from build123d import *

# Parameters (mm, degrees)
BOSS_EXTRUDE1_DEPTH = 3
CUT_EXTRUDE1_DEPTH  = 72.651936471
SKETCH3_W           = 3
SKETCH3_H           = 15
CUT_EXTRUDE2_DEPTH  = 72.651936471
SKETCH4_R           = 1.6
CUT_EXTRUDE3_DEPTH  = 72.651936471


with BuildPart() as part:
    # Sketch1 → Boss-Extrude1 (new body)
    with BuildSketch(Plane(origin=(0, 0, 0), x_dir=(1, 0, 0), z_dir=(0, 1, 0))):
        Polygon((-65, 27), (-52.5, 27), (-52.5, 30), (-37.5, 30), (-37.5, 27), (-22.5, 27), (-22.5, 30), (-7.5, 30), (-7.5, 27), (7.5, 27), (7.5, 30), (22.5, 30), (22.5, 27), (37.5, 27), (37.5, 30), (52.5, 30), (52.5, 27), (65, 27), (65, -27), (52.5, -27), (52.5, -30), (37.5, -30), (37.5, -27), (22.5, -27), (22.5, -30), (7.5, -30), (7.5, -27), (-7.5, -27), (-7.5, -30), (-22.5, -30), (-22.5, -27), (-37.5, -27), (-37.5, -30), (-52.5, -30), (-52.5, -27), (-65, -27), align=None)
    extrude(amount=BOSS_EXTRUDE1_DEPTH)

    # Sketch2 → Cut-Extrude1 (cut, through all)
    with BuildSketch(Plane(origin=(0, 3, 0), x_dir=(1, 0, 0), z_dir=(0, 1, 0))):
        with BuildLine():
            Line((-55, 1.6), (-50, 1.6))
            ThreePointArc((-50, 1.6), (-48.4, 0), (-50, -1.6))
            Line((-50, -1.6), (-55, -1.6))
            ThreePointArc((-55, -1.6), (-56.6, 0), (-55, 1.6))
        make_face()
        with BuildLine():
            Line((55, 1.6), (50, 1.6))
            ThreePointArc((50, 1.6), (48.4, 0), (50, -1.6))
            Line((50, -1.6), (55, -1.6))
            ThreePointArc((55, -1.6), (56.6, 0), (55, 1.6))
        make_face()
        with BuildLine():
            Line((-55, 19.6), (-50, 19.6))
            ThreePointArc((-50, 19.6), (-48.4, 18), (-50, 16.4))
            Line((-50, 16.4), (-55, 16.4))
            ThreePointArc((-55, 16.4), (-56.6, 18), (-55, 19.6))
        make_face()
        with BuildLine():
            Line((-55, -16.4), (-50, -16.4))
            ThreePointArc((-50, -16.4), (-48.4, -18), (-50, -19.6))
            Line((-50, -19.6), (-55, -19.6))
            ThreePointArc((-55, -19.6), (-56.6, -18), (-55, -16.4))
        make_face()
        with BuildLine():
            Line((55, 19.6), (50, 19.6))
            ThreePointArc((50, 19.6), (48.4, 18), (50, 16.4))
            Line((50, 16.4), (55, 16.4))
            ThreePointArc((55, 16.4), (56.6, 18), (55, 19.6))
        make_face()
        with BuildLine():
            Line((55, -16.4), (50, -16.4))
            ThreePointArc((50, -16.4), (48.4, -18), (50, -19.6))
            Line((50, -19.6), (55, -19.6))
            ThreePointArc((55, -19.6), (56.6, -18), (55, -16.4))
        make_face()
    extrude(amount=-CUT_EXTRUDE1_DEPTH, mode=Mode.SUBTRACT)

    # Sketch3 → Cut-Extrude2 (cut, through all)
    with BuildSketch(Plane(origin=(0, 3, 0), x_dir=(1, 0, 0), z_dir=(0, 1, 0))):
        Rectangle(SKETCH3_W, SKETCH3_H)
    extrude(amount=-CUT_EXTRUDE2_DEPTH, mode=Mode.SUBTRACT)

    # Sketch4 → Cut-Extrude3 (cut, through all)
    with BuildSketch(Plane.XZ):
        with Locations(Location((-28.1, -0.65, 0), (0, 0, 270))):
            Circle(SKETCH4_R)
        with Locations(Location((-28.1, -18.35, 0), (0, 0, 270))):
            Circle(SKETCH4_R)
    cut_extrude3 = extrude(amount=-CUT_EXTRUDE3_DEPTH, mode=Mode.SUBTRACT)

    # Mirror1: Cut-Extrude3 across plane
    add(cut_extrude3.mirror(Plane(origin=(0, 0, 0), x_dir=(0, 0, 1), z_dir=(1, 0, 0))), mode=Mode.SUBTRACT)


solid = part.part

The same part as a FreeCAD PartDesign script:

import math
import FreeCAD as App
import Part
import Sketcher
from FreeCAD import Vector

doc = App.newDocument("Part")
body = doc.addObject("PartDesign::Body", "Body")

# Sketch on XZ plane
sketch1 = body.newObject("Sketcher::SketchObject", "Sketch")
sketch1.AttachmentSupport = (doc.getObject("XZ_Plane"), [""])
sketch1.MapMode = "FlatFace"
sketch1.addGeometry(Part.LineSegment(Vector(-52.5, -27, 0), Vector(-65, -27, 0)), False)
sketch1.addGeometry(Part.LineSegment(Vector(-65, -27, 0), Vector(-65, 27, 0)), False)
sketch1.addGeometry(Part.LineSegment(Vector(-65, 27, 0), Vector(-52.5, 27, 0)), False)
sketch1.addGeometry(Part.LineSegment(Vector(-52.5, 27, 0), Vector(-52.5, 30, 0)), False)
sketch1.addGeometry(Part.LineSegment(Vector(-52.5, 30, 0), Vector(-37.5, 30, 0)), False)
sketch1.addGeometry(Part.LineSegment(Vector(-37.5, 30, 0), Vector(-37.5, 27, 0)), False)
sketch1.addGeometry(Part.LineSegment(Vector(-37.5, 27, 0), Vector(-22.5, 27, 0)), False)
sketch1.addGeometry(Part.LineSegment(Vector(-22.5, 27, 0), Vector(-22.5, 30, 0)), False)
sketch1.addGeometry(Part.LineSegment(Vector(-22.5, 30, 0), Vector(-7.5, 30, 0)), False)
sketch1.addGeometry(Part.LineSegment(Vector(-7.5, 30, 0), Vector(-7.5, 27, 0)), False)
sketch1.addGeometry(Part.LineSegment(Vector(-7.5, 27, 0), Vector(7.5, 27, 0)), False)
sketch1.addGeometry(Part.LineSegment(Vector(7.5, 27, 0), Vector(7.5, 30, 0)), False)
sketch1.addGeometry(Part.LineSegment(Vector(7.5, 30, 0), Vector(22.5, 30, 0)), False)
sketch1.addGeometry(Part.LineSegment(Vector(22.5, 30, 0), Vector(22.5, 27, 0)), False)
sketch1.addGeometry(Part.LineSegment(Vector(22.5, 27, 0), Vector(37.5, 27, 0)), False)
sketch1.addGeometry(Part.LineSegment(Vector(37.5, 27, 0), Vector(37.5, 30, 0)), False)
sketch1.addGeometry(Part.LineSegment(Vector(37.5, 30, 0), Vector(52.5, 30, 0)), False)
sketch1.addGeometry(Part.LineSegment(Vector(52.5, 30, 0), Vector(52.5, 27, 0)), False)
sketch1.addGeometry(Part.LineSegment(Vector(52.5, 27, 0), Vector(65, 27, 0)), False)
sketch1.addGeometry(Part.LineSegment(Vector(65, 27, 0), Vector(65, -27, 0)), False)
sketch1.addGeometry(Part.LineSegment(Vector(65, -27, 0), Vector(52.5, -27, 0)), False)
sketch1.addGeometry(Part.LineSegment(Vector(52.5, -27, 0), Vector(52.5, -30, 0)), False)
sketch1.addGeometry(Part.LineSegment(Vector(52.5, -30, 0), Vector(37.5, -30, 0)), False)
sketch1.addGeometry(Part.LineSegment(Vector(37.5, -30, 0), Vector(37.5, -27, 0)), False)
sketch1.addGeometry(Part.LineSegment(Vector(37.5, -27, 0), Vector(22.5, -27, 0)), False)
sketch1.addGeometry(Part.LineSegment(Vector(22.5, -27, 0), Vector(22.5, -30, 0)), False)
sketch1.addGeometry(Part.LineSegment(Vector(22.5, -30, 0), Vector(7.5, -30, 0)), False)
sketch1.addGeometry(Part.LineSegment(Vector(7.5, -30, 0), Vector(7.5, -27, 0)), False)
sketch1.addGeometry(Part.LineSegment(Vector(7.5, -27, 0), Vector(-7.5, -27, 0)), False)
sketch1.addGeometry(Part.LineSegment(Vector(-7.5, -27, 0), Vector(-7.5, -30, 0)), False)
sketch1.addGeometry(Part.LineSegment(Vector(-7.5, -30, 0), Vector(-22.5, -30, 0)), False)
sketch1.addGeometry(Part.LineSegment(Vector(-22.5, -30, 0), Vector(-22.5, -27, 0)), False)
sketch1.addGeometry(Part.LineSegment(Vector(-22.5, -27, 0), Vector(-37.5, -27, 0)), False)
sketch1.addGeometry(Part.LineSegment(Vector(-37.5, -27, 0), Vector(-37.5, -30, 0)), False)
sketch1.addGeometry(Part.LineSegment(Vector(-37.5, -30, 0), Vector(-52.5, -30, 0)), False)
sketch1.addGeometry(Part.LineSegment(Vector(-52.5, -30, 0), Vector(-52.5, -27, 0)), False)
sketch1.addConstraint(Sketcher.Constraint("Coincident", 0, 2, 1, 1))
sketch1.addConstraint(Sketcher.Constraint("Coincident", 1, 2, 2, 1))
sketch1.addConstraint(Sketcher.Constraint("Coincident", 2, 2, 3, 1))
sketch1.addConstraint(Sketcher.Constraint("Coincident", 3, 2, 4, 1))
sketch1.addConstraint(Sketcher.Constraint("Coincident", 4, 2, 5, 1))
sketch1.addConstraint(Sketcher.Constraint("Coincident", 5, 2, 6, 1))
sketch1.addConstraint(Sketcher.Constraint("Coincident", 6, 2, 7, 1))
sketch1.addConstraint(Sketcher.Constraint("Coincident", 7, 2, 8, 1))
sketch1.addConstraint(Sketcher.Constraint("Coincident", 8, 2, 9, 1))
sketch1.addConstraint(Sketcher.Constraint("Coincident", 9, 2, 10, 1))
sketch1.addConstraint(Sketcher.Constraint("Coincident", 10, 2, 11, 1))
sketch1.addConstraint(Sketcher.Constraint("Coincident", 11, 2, 12, 1))
sketch1.addConstraint(Sketcher.Constraint("Coincident", 12, 2, 13, 1))
sketch1.addConstraint(Sketcher.Constraint("Coincident", 13, 2, 14, 1))
sketch1.addConstraint(Sketcher.Constraint("Coincident", 14, 2, 15, 1))
sketch1.addConstraint(Sketcher.Constraint("Coincident", 15, 2, 16, 1))
sketch1.addConstraint(Sketcher.Constraint("Coincident", 16, 2, 17, 1))
sketch1.addConstraint(Sketcher.Constraint("Coincident", 17, 2, 18, 1))
sketch1.addConstraint(Sketcher.Constraint("Coincident", 18, 2, 19, 1))
sketch1.addConstraint(Sketcher.Constraint("Coincident", 19, 2, 20, 1))
sketch1.addConstraint(Sketcher.Constraint("Coincident", 20, 2, 21, 1))
sketch1.addConstraint(Sketcher.Constraint("Coincident", 21, 2, 22, 1))
sketch1.addConstraint(Sketcher.Constraint("Coincident", 22, 2, 23, 1))
sketch1.addConstraint(Sketcher.Constraint("Coincident", 23, 2, 24, 1))
sketch1.addConstraint(Sketcher.Constraint("Coincident", 24, 2, 25, 1))
sketch1.addConstraint(Sketcher.Constraint("Coincident", 25, 2, 26, 1))
sketch1.addConstraint(Sketcher.Constraint("Coincident", 26, 2, 27, 1))
sketch1.addConstraint(Sketcher.Constraint("Coincident", 27, 2, 28, 1))
sketch1.addConstraint(Sketcher.Constraint("Coincident", 28, 2, 29, 1))
sketch1.addConstraint(Sketcher.Constraint("Coincident", 29, 2, 30, 1))
sketch1.addConstraint(Sketcher.Constraint("Coincident", 30, 2, 31, 1))
sketch1.addConstraint(Sketcher.Constraint("Coincident", 31, 2, 32, 1))
sketch1.addConstraint(Sketcher.Constraint("Coincident", 32, 2, 33, 1))
sketch1.addConstraint(Sketcher.Constraint("Coincident", 33, 2, 34, 1))
sketch1.addConstraint(Sketcher.Constraint("Coincident", 34, 2, 35, 1))
sketch1.addConstraint(Sketcher.Constraint("Coincident", 35, 2, 0, 1))
sketch1.addConstraint(Sketcher.Constraint("Horizontal", 0))
sketch1.addConstraint(Sketcher.Constraint("Vertical", 1))
sketch1.addConstraint(Sketcher.Constraint("Horizontal", 2))
sketch1.addConstraint(Sketcher.Constraint("Vertical", 3))
sketch1.addConstraint(Sketcher.Constraint("Horizontal", 4))
sketch1.addConstraint(Sketcher.Constraint("Vertical", 5))
sketch1.addConstraint(Sketcher.Constraint("Horizontal", 6))
sketch1.addConstraint(Sketcher.Constraint("Vertical", 7))
sketch1.addConstraint(Sketcher.Constraint("Horizontal", 8))
sketch1.addConstraint(Sketcher.Constraint("Vertical", 9))
sketch1.addConstraint(Sketcher.Constraint("Horizontal", 10))
sketch1.addConstraint(Sketcher.Constraint("Vertical", 11))
sketch1.addConstraint(Sketcher.Constraint("Horizontal", 12))
sketch1.addConstraint(Sketcher.Constraint("Vertical", 13))
sketch1.addConstraint(Sketcher.Constraint("Horizontal", 14))
sketch1.addConstraint(Sketcher.Constraint("Vertical", 15))
sketch1.addConstraint(Sketcher.Constraint("Horizontal", 16))
sketch1.addConstraint(Sketcher.Constraint("Vertical", 17))
sketch1.addConstraint(Sketcher.Constraint("Horizontal", 18))
sketch1.addConstraint(Sketcher.Constraint("Vertical", 19))
sketch1.addConstraint(Sketcher.Constraint("Horizontal", 20))
sketch1.addConstraint(Sketcher.Constraint("Vertical", 21))
sketch1.addConstraint(Sketcher.Constraint("Horizontal", 22))
sketch1.addConstraint(Sketcher.Constraint("Vertical", 23))
sketch1.addConstraint(Sketcher.Constraint("Horizontal", 24))
sketch1.addConstraint(Sketcher.Constraint("Vertical", 25))
sketch1.addConstraint(Sketcher.Constraint("Horizontal", 26))
sketch1.addConstraint(Sketcher.Constraint("Vertical", 27))
sketch1.addConstraint(Sketcher.Constraint("Horizontal", 28))
sketch1.addConstraint(Sketcher.Constraint("Vertical", 29))
sketch1.addConstraint(Sketcher.Constraint("Horizontal", 30))
sketch1.addConstraint(Sketcher.Constraint("Vertical", 31))
sketch1.addConstraint(Sketcher.Constraint("Horizontal", 32))
sketch1.addConstraint(Sketcher.Constraint("Vertical", 33))
sketch1.addConstraint(Sketcher.Constraint("Horizontal", 34))
sketch1.addConstraint(Sketcher.Constraint("Vertical", 35))
sketch1.addConstraint(Sketcher.Constraint("Symmetric", 0, 2, 18, 2, -1, 1))
sketch1.addConstraint(Sketcher.Constraint("Symmetric", 2, 2, 20, 2, -1, 1))
sketch1.addConstraint(Sketcher.Constraint("Symmetric", 4, 2, 22, 2, -1, 1))
sketch1.addConstraint(Sketcher.Constraint("Symmetric", 6, 2, 24, 2, -1, 1))
sketch1.addConstraint(Sketcher.Constraint("Symmetric", 8, 2, 26, 2, -1, 1))
sketch1.addConstraint(Sketcher.Constraint("Symmetric", 10, 2, 28, 2, -1, 1))
sketch1.addConstraint(Sketcher.Constraint("Symmetric", 12, 2, 30, 2, -1, 1))
sketch1.addConstraint(Sketcher.Constraint("Symmetric", 14, 2, 32, 2, -1, 1))
sketch1.addConstraint(Sketcher.Constraint("Symmetric", 16, 2, 34, 2, -1, 1))
sketch1.addConstraint(Sketcher.Constraint("Symmetric", 8, 2, 11, 2, -2))
sketch1.addConstraint(Sketcher.Constraint("Symmetric", 6, 2, 13, 2, -2))
sketch1.addConstraint(Sketcher.Constraint("Symmetric", 4, 2, 15, 2, -2))
sketch1.addConstraint(Sketcher.Constraint("Symmetric", 2, 2, 17, 2, -2))
sketch1.addConstraint(Sketcher.Constraint("Horizontal", 2, 2, 5, 2))
sketch1.addConstraint(Sketcher.Constraint("Horizontal", 4, 2, 7, 2))
sketch1.addConstraint(Sketcher.Constraint("Horizontal", 6, 2, 9, 2))
sketch1.addConstraint(Sketcher.Constraint("Equal", 4, 6))
sketch1.addConstraint(Sketcher.Constraint("Equal", 6, 8))
sketch1.addConstraint(Sketcher.Constraint("Equal", 8, 10))
sketch1.addConstraint(Sketcher.Constraint("DistanceX", 4, 1, 4, 2, 15.0))
sketch1.addConstraint(Sketcher.Constraint("DistanceY", 1, 1, 1, 2, 54.0))
sketch1.addConstraint(Sketcher.Constraint("DistanceY", 3, 1, 3, 2, 3.0))
sketch1.addConstraint(Sketcher.Constraint("DistanceX", 0, 2, 0, 1, 12.5))
pad1 = body.newObject("PartDesign::Pad", "Pad")
pad1.Profile = sketch1
pad1.Length = 3
pad1.Reversed = True

# Sketch on XZ plane
sketch2 = body.newObject("Sketcher::SketchObject", "Sketch001")
sketch2.AttachmentSupport = (doc.getObject("XZ_Plane"), [""])
sketch2.MapMode = "FlatFace"
sketch2.AttachmentOffset = App.Placement(Vector(0, 0, -3), App.Rotation())
sketch2.addGeometry(Part.LineSegment(Vector(-50, -1.6, 0), Vector(-55, -1.6, 0)), False)
sketch2.addGeometry(Part.ArcOfCircle(Part.Circle(Vector(-55, 0, 0), Vector(0, 0, 1), 1.6), math.radians(90), math.radians(270)), False)
sketch2.addGeometry(Part.LineSegment(Vector(-55, 1.6, 0), Vector(-50, 1.6, 0)), False)
sketch2.addGeometry(Part.ArcOfCircle(Part.Circle(Vector(-50, 0, 0), Vector(0, 0, 1), 1.6), math.radians(-90), math.radians(90)), False)
sketch2.addGeometry(Part.LineSegment(Vector(55, -1.6, 0), Vector(50, -1.6, 0)), False)
sketch2.addGeometry(Part.ArcOfCircle(Part.Circle(Vector(50, 0, 0), Vector(0, 0, 1), 1.6), math.radians(90), math.radians(270)), False)
sketch2.addGeometry(Part.LineSegment(Vector(50, 1.6, 0), Vector(55, 1.6, 0)), False)
sketch2.addGeometry(Part.ArcOfCircle(Part.Circle(Vector(55, 0, 0), Vector(0, 0, 1), 1.6), math.radians(-90), math.radians(90)), False)
sketch2.addGeometry(Part.LineSegment(Vector(-50, -19.6, 0), Vector(-55, -19.6, 0)), False)
sketch2.addGeometry(Part.ArcOfCircle(Part.Circle(Vector(-55, -18, 0), Vector(0, 0, 1), 1.6), math.radians(90), math.radians(270)), False)
sketch2.addGeometry(Part.LineSegment(Vector(-55, -16.4, 0), Vector(-50, -16.4, 0)), False)
sketch2.addGeometry(Part.ArcOfCircle(Part.Circle(Vector(-50, -18, 0), Vector(0, 0, 1), 1.6), math.radians(-90), math.radians(90)), False)
sketch2.addGeometry(Part.LineSegment(Vector(-50, 16.4, 0), Vector(-55, 16.4, 0)), False)
sketch2.addGeometry(Part.ArcOfCircle(Part.Circle(Vector(-55, 18, 0), Vector(0, 0, 1), 1.6), math.radians(90), math.radians(270)), False)
sketch2.addGeometry(Part.LineSegment(Vector(-55, 19.6, 0), Vector(-50, 19.6, 0)), False)
sketch2.addGeometry(Part.ArcOfCircle(Part.Circle(Vector(-50, 18, 0), Vector(0, 0, 1), 1.6), math.radians(-90), math.radians(90)), False)
sketch2.addGeometry(Part.LineSegment(Vector(55, -19.6, 0), Vector(50, -19.6, 0)), False)
sketch2.addGeometry(Part.ArcOfCircle(Part.Circle(Vector(50, -18, 0), Vector(0, 0, 1), 1.6), math.radians(90), math.radians(270)), False)
sketch2.addGeometry(Part.LineSegment(Vector(50, -16.4, 0), Vector(55, -16.4, 0)), False)
sketch2.addGeometry(Part.ArcOfCircle(Part.Circle(Vector(55, -18, 0), Vector(0, 0, 1), 1.6), math.radians(-90), math.radians(90)), False)
sketch2.addGeometry(Part.LineSegment(Vector(55, 16.4, 0), Vector(50, 16.4, 0)), False)
sketch2.addGeometry(Part.ArcOfCircle(Part.Circle(Vector(50, 18, 0), Vector(0, 0, 1), 1.6), math.radians(90), math.radians(270)), False)
sketch2.addGeometry(Part.LineSegment(Vector(50, 19.6, 0), Vector(55, 19.6, 0)), False)
sketch2.addGeometry(Part.ArcOfCircle(Part.Circle(Vector(55, 18, 0), Vector(0, 0, 1), 1.6), math.radians(-90), math.radians(90)), False)
sketch2.addConstraint(Sketcher.Constraint("Tangent", 0, 2, 1, 2))
sketch2.addConstraint(Sketcher.Constraint("Tangent", 1, 1, 2, 1))
sketch2.addConstraint(Sketcher.Constraint("Tangent", 2, 2, 3, 2))
sketch2.addConstraint(Sketcher.Constraint("Tangent", 3, 1, 0, 1))
sketch2.addConstraint(Sketcher.Constraint("Tangent", 4, 2, 5, 2))
sketch2.addConstraint(Sketcher.Constraint("Tangent", 5, 1, 6, 1))
sketch2.addConstraint(Sketcher.Constraint("Tangent", 6, 2, 7, 2))
sketch2.addConstraint(Sketcher.Constraint("Tangent", 7, 1, 4, 1))
sketch2.addConstraint(Sketcher.Constraint("Tangent", 8, 2, 9, 2))
sketch2.addConstraint(Sketcher.Constraint("Tangent", 9, 1, 10, 1))
sketch2.addConstraint(Sketcher.Constraint("Tangent", 10, 2, 11, 2))
sketch2.addConstraint(Sketcher.Constraint("Tangent", 11, 1, 8, 1))
sketch2.addConstraint(Sketcher.Constraint("Tangent", 12, 2, 13, 2))
sketch2.addConstraint(Sketcher.Constraint("Tangent", 13, 1, 14, 1))
sketch2.addConstraint(Sketcher.Constraint("Tangent", 14, 2, 15, 2))
sketch2.addConstraint(Sketcher.Constraint("Tangent", 15, 1, 12, 1))
sketch2.addConstraint(Sketcher.Constraint("Tangent", 16, 2, 17, 2))
sketch2.addConstraint(Sketcher.Constraint("Tangent", 17, 1, 18, 1))
sketch2.addConstraint(Sketcher.Constraint("Tangent", 18, 2, 19, 2))
sketch2.addConstraint(Sketcher.Constraint("Tangent", 19, 1, 16, 1))
sketch2.addConstraint(Sketcher.Constraint("Tangent", 20, 2, 21, 2))
sketch2.addConstraint(Sketcher.Constraint("Tangent", 21, 1, 22, 1))
sketch2.addConstraint(Sketcher.Constraint("Tangent", 22, 2, 23, 2))
sketch2.addConstraint(Sketcher.Constraint("Tangent", 23, 1, 20, 1))
sketch2.addConstraint(Sketcher.Constraint("Horizontal", 0))
sketch2.addConstraint(Sketcher.Constraint("Horizontal", 2))
sketch2.addConstraint(Sketcher.Constraint("Horizontal", 4))
sketch2.addConstraint(Sketcher.Constraint("Horizontal", 6))
sketch2.addConstraint(Sketcher.Constraint("Horizontal", 8))
sketch2.addConstraint(Sketcher.Constraint("Horizontal", 10))
sketch2.addConstraint(Sketcher.Constraint("Horizontal", 12))
sketch2.addConstraint(Sketcher.Constraint("Horizontal", 14))
sketch2.addConstraint(Sketcher.Constraint("Horizontal", 16))
sketch2.addConstraint(Sketcher.Constraint("Horizontal", 18))
sketch2.addConstraint(Sketcher.Constraint("Horizontal", 20))
sketch2.addConstraint(Sketcher.Constraint("Horizontal", 22))
sketch2.addConstraint(Sketcher.Constraint("Equal", 3, 5))
sketch2.addConstraint(Sketcher.Constraint("Equal", 7, 9))
sketch2.addConstraint(Sketcher.Constraint("Equal", 11, 13))
sketch2.addConstraint(Sketcher.Constraint("Equal", 15, 17))
sketch2.addConstraint(Sketcher.Constraint("Equal", 19, 21))
sketch2.addConstraint(Sketcher.Constraint("Symmetric", 3, 3, 5, 3, -1, 1))
sketch2.addConstraint(Sketcher.Constraint("Symmetric", 15, 3, 17, 3, -1, 1))
sketch2.addConstraint(Sketcher.Constraint("Symmetric", 11, 3, 21, 3, -1, 1))
sketch2.addConstraint(Sketcher.Constraint("Symmetric", 1, 3, 7, 3, -2))
sketch2.addConstraint(Sketcher.Constraint("Symmetric", 11, 3, 17, 3, -2))
sketch2.addConstraint(Sketcher.Constraint("Vertical", 1, 3, 9, 3))
sketch2.addConstraint(Sketcher.Constraint("Vertical", 3, 3, 11, 3))
sketch2.addConstraint(Sketcher.Constraint("Vertical", 9, 3, 13, 3))
sketch2.addConstraint(Sketcher.Constraint("Vertical", 7, 3, 19, 3))
sketch2.addConstraint(Sketcher.Constraint("Vertical", 19, 3, 23, 3))
sketch2.addConstraint(Sketcher.Constraint("Radius", 1, 1.6))
sketch2.addConstraint(Sketcher.Constraint("DistanceX", 0, 2, 0, 1, 5.0))
sketch2.addConstraint(Sketcher.Constraint("DistanceX", 1, 3, -1, 1, 55.0))
sketch2.addConstraint(Sketcher.Constraint("DistanceY", 9, 3, -1, 1, 18.0))
pocket1 = body.newObject("PartDesign::Pocket", "Pocket")
pocket1.Profile = sketch2
pocket1.Type = "ThroughAll"
pocket1.Reversed = True

# Sketch on XZ plane
sketch3 = body.newObject("Sketcher::SketchObject", "Sketch002")
sketch3.AttachmentSupport = (doc.getObject("XZ_Plane"), [""])
sketch3.MapMode = "FlatFace"
sketch3.AttachmentOffset = App.Placement(Vector(0, 0, -3), App.Rotation())
sketch3.addGeometry(Part.LineSegment(Vector(-1.5, -7.5, 0), Vector(-1.5, 7.5, 0)), False)
sketch3.addGeometry(Part.LineSegment(Vector(-1.5, 7.5, 0), Vector(1.5, 7.5, 0)), False)
sketch3.addGeometry(Part.LineSegment(Vector(1.5, 7.5, 0), Vector(1.5, -7.5, 0)), False)
sketch3.addGeometry(Part.LineSegment(Vector(1.5, -7.5, 0), Vector(-1.5, -7.5, 0)), False)
sketch3.addConstraint(Sketcher.Constraint("Coincident", 0, 2, 1, 1))
sketch3.addConstraint(Sketcher.Constraint("Coincident", 1, 2, 2, 1))
sketch3.addConstraint(Sketcher.Constraint("Coincident", 2, 2, 3, 1))
sketch3.addConstraint(Sketcher.Constraint("Coincident", 3, 2, 0, 1))
sketch3.addConstraint(Sketcher.Constraint("Vertical", 0))
sketch3.addConstraint(Sketcher.Constraint("Horizontal", 1))
sketch3.addConstraint(Sketcher.Constraint("Vertical", 2))
sketch3.addConstraint(Sketcher.Constraint("Horizontal", 3))
sketch3.addConstraint(Sketcher.Constraint("Symmetric", 0, 2, 2, 2, -1, 1))
sketch3.addConstraint(Sketcher.Constraint("DistanceX", 1, 1, 1, 2, 3.0))
sketch3.addConstraint(Sketcher.Constraint("DistanceY", 0, 1, 0, 2, 15.0))
pocket2 = body.newObject("PartDesign::Pocket", "Pocket001")
pocket2.Profile = sketch3
pocket2.Type = "ThroughAll"
pocket2.Reversed = True

# Sketch on XZ plane
sketch4 = body.newObject("Sketcher::SketchObject", "Sketch003")
sketch4.AttachmentSupport = (doc.getObject("XZ_Plane"), [""])
sketch4.MapMode = "FlatFace"
sketch4.addGeometry(Part.Circle(Vector(-28.1, -0.7, 0), Vector(0, 0, 1), 1.6), False)
sketch4.addGeometry(Part.Circle(Vector(-28.1, -18.4, 0), Vector(0, 0, 1), 1.6), False)
sketch4.addConstraint(Sketcher.Constraint("Equal", 0, 1))
sketch4.addConstraint(Sketcher.Constraint("Vertical", 0, 3, 1, 3))
sketch4.addConstraint(Sketcher.Constraint("Diameter", 0, 3.2))
sketch4.addConstraint(Sketcher.Constraint("DistanceX", 0, 3, -1, 1, 28.1))
sketch4.addConstraint(Sketcher.Constraint("DistanceY", 1, 3, 0, 3, 17.7))
sketch4.addConstraint(Sketcher.Constraint("DistanceY", 0, 3, -1, 1, 0.65))
pocket3 = body.newObject("PartDesign::Pocket", "Pocket002")
pocket3.Profile = sketch4
pocket3.Type = "ThroughAll"
doc.recompute()

mirrored = body.newObject("PartDesign::Mirrored", "Mirrored")
mirrored.Originals = [pocket3]
mirrored.MirrorPlane = (doc.getObject("YZ_Plane"), [""])
body.Tip = mirrored

doc.recompute()
